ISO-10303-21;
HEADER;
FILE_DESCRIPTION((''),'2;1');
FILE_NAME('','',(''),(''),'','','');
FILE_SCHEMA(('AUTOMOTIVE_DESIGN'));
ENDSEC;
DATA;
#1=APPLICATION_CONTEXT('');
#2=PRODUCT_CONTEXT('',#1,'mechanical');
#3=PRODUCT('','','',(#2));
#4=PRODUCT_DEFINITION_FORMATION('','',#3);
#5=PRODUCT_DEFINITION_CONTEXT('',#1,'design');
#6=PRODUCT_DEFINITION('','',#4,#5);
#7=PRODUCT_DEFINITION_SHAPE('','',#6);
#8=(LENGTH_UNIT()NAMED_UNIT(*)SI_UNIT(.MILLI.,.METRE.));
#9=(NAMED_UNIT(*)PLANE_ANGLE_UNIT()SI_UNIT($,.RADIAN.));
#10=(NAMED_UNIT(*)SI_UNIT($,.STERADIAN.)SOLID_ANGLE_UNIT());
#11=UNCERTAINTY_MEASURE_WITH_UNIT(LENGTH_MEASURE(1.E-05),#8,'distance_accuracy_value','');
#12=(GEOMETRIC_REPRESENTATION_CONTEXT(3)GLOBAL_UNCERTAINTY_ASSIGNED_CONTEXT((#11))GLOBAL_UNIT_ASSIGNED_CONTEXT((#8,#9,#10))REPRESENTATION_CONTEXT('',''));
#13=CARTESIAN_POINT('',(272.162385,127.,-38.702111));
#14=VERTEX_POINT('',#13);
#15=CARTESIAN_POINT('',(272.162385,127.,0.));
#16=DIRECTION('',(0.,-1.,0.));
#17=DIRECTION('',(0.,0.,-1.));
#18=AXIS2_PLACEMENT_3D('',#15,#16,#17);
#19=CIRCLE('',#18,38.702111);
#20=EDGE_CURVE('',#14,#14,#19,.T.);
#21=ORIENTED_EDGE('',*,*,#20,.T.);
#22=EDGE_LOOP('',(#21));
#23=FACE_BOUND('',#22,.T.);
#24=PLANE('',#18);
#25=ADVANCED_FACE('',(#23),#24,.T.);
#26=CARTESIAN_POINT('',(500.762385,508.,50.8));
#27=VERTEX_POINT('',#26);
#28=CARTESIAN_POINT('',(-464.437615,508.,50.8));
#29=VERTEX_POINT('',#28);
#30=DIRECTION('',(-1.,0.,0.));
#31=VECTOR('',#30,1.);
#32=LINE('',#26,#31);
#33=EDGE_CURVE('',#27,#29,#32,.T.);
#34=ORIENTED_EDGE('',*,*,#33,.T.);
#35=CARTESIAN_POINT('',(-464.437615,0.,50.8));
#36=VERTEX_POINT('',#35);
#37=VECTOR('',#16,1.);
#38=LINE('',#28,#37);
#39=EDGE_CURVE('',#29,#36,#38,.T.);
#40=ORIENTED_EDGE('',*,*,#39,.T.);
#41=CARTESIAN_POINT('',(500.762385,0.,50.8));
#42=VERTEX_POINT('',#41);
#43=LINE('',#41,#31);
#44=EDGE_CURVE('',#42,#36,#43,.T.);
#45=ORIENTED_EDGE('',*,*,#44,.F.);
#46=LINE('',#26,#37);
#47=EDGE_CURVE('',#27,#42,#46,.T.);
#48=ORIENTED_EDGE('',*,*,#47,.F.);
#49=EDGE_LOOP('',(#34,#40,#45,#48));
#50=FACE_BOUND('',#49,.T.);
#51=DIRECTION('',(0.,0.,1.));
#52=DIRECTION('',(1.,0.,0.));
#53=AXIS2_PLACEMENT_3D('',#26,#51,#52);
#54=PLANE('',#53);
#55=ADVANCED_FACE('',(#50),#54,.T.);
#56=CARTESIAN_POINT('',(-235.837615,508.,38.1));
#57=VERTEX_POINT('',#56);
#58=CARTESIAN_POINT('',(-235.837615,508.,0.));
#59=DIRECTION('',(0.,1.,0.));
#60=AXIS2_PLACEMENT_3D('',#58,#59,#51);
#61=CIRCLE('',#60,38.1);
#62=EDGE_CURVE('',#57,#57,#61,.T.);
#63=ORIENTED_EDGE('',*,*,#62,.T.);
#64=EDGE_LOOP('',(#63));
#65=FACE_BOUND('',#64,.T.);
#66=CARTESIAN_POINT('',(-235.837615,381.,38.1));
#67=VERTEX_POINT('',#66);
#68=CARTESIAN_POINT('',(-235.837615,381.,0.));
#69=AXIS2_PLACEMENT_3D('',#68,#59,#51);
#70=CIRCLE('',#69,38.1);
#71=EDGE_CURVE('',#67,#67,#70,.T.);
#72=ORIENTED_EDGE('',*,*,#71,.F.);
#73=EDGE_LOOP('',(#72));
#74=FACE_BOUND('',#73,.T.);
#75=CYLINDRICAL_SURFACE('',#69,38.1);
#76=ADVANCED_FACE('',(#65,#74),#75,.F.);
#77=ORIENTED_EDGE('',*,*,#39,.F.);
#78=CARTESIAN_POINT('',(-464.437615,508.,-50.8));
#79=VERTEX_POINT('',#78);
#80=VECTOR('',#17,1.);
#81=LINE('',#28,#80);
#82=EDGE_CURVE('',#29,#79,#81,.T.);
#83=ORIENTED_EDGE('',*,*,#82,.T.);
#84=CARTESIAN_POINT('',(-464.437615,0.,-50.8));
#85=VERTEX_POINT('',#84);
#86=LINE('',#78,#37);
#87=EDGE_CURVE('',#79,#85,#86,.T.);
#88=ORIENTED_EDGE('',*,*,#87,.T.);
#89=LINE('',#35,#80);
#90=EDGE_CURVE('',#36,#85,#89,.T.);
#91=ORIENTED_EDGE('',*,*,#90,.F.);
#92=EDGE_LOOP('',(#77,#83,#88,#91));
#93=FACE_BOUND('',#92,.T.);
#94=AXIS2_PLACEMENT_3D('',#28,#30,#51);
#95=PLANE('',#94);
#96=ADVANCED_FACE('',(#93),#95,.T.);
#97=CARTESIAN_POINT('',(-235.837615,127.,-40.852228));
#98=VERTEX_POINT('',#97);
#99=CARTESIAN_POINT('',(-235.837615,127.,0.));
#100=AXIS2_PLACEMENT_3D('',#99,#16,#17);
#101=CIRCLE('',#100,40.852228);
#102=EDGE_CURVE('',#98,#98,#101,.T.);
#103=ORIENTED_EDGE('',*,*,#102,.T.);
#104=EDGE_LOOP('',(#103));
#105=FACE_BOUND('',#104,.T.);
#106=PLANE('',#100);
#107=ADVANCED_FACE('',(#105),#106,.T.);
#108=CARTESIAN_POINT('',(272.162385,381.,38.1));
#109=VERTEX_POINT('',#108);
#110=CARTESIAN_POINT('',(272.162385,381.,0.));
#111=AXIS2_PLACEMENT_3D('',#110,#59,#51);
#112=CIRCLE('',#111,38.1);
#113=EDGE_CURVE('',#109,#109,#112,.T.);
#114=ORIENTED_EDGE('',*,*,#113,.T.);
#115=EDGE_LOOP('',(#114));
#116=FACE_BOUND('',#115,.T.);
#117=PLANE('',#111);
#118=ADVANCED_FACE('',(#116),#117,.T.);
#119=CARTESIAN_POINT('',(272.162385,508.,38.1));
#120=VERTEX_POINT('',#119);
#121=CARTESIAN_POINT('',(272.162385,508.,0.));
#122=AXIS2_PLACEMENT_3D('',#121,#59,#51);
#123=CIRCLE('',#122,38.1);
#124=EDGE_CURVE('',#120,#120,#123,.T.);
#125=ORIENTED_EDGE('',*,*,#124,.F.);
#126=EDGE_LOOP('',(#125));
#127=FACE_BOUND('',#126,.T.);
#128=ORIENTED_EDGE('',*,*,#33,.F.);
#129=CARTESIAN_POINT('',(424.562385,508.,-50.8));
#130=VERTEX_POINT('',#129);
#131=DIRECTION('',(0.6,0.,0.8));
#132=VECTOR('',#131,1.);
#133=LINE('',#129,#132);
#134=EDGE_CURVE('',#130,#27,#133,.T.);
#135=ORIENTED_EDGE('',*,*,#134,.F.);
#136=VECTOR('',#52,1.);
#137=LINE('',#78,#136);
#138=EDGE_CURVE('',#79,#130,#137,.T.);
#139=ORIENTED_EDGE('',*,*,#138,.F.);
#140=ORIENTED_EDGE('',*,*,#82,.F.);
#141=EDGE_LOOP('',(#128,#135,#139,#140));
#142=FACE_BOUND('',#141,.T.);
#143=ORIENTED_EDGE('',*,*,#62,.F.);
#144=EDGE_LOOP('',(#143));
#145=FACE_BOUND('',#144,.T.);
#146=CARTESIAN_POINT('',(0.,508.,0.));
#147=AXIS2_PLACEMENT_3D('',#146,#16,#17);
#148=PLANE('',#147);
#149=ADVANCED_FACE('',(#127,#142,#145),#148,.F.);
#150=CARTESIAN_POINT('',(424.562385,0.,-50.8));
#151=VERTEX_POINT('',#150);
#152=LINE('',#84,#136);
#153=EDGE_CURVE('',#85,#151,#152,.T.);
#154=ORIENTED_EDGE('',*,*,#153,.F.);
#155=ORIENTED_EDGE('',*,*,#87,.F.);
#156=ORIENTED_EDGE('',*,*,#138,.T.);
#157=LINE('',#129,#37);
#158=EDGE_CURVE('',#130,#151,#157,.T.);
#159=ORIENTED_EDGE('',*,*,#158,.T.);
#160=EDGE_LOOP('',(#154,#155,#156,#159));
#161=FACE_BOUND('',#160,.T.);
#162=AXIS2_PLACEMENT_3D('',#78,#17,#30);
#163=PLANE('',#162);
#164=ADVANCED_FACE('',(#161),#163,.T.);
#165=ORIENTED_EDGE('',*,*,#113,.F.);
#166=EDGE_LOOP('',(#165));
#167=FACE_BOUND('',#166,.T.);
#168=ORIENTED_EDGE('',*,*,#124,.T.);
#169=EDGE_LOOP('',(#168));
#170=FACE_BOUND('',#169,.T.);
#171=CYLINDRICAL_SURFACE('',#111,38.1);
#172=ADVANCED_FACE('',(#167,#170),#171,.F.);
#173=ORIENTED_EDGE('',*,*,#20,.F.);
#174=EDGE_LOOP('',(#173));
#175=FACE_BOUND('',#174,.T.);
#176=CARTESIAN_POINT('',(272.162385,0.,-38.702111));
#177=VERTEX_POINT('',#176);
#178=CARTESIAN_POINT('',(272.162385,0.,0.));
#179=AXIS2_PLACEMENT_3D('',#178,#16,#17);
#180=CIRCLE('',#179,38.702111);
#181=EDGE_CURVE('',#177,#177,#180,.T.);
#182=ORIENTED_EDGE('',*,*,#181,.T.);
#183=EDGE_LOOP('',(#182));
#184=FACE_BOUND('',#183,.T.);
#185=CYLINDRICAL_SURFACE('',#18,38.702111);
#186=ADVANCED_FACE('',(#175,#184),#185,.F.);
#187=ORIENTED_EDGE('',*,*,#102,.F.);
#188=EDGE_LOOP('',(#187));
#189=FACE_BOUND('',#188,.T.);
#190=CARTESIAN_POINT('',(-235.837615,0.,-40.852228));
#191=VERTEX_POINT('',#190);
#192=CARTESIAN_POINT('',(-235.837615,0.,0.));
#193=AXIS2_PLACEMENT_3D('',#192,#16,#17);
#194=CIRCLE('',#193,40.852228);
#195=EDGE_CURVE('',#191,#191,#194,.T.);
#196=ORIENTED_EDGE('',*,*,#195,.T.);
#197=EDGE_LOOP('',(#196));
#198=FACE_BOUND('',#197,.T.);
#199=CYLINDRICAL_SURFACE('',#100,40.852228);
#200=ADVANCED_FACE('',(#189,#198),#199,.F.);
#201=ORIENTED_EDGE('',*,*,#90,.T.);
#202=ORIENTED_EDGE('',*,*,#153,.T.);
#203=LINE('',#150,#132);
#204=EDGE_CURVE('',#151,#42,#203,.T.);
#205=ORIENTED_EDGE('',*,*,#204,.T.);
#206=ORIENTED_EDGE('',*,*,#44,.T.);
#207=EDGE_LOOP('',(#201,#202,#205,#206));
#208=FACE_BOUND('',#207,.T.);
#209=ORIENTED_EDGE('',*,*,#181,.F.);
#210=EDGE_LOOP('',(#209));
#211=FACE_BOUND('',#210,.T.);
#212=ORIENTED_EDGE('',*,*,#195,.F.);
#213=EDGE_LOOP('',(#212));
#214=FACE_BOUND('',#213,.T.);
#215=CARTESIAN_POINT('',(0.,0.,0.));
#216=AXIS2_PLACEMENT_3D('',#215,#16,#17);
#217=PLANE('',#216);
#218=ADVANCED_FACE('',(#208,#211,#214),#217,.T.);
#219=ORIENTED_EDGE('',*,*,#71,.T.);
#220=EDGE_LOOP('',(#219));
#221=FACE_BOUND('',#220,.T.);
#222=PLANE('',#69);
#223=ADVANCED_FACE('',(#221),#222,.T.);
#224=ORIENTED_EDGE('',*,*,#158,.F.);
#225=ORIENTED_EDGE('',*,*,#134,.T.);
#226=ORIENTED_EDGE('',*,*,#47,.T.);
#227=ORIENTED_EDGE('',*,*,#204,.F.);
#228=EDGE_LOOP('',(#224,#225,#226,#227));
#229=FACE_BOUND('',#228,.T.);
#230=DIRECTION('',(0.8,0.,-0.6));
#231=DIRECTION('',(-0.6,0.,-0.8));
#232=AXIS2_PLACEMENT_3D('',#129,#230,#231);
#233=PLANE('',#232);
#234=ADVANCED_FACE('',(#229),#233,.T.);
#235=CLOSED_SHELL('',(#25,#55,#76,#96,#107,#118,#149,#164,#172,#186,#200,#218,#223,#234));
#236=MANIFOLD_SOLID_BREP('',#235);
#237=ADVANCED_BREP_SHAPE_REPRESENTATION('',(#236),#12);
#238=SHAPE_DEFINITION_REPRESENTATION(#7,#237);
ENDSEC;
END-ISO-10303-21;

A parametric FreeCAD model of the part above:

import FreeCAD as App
import Part
import Sketcher
Q = App.Units.Quantity


def add_polygon(sketch, points):
    """Adds a closed chain of lines whose ends are joined by coincident constraints."""
    first, n = sketch.GeometryCount, len(points)
    for a, b in zip(points, points[1:] + points[:1]):
        sketch.addGeometry(Part.LineSegment(App.Vector(*a, 0), App.Vector(*b, 0)), False)
    for i in range(n):
        sketch.addConstraint(Sketcher.Constraint("Coincident", first + i, 2, first + (i + 1) % n, 1))

doc = App.newDocument("Part")
body = doc.addObject("PartDesign::Body", "Body")

sketch1 = body.newObject("Sketcher::SketchObject", "Sketch")
sketch1.AttachmentSupport = (doc.getObject("XZ_Plane"), [""])
sketch1.MapMode = "FlatFace"
add_polygon(sketch1, [(425, -51), (-464, -51), (-464, 51), (501, 51)])
sketch1.addConstraint([
    Sketcher.Constraint("Horizontal", 0),
    Sketcher.Constraint("Vertical", 1),
    Sketcher.Constraint("Horizontal", 2),
    Sketcher.Constraint("DistanceX", 0, 2, 0, 1, Q("35 in")),
    Sketcher.Constraint("DistanceX", 2, 1, 2, 2, Q("38 in")),
    Sketcher.Constraint("DistanceY", 1, 1, 1, 2, Q("4 in")),
    Sketcher.Constraint("DistanceY", 0, 2, -1, 1, Q("2 in")),
    Sketcher.Constraint("DistanceX", 0, 2, -1, 1, 464.437615),
])
pad1 = body.newObject("PartDesign::Pad", "Pad")
pad1.Profile = sketch1
pad1.Length = Q("20 in")
pad1.Reversed = True

sketch2 = body.newObject("Sketcher::SketchObject", "Sketch001")
sketch2.AttachmentSupport = (doc.getObject("XZ_Plane"), [""])
sketch2.MapMode = "FlatFace"
sketch2.AttachmentOffset = App.Placement(App.Vector(0, 0, -20 * 25.4), App.Rotation())
sketch2.addGeometry([
    Part.Circle(App.Vector(-236, 0, 0), App.Vector(0, 0, 1), 38),
    Part.Circle(App.Vector(272, 0, 0), App.Vector(0, 0, 1), 38),
], False)
sketch2.addConstraint([
    Sketcher.Constraint("Equal", 0, 1),
    Sketcher.Constraint("PointOnObject", 0, 3, -1),
    Sketcher.Constraint("PointOnObject", 1, 3, -1),
    Sketcher.Constraint("Diameter", 0, Q("3 in")),
    Sketcher.Constraint("DistanceX", 0, 3, 1, 3, Q("20 in")),
    Sketcher.Constraint("DistanceX", 0, 3, -1, 1, 235.837615),
])
pocket1 = body.newObject("PartDesign::Pocket", "Pocket")
pocket1.Profile = sketch2
pocket1.Length = Q("5 in")
pocket1.Reversed = True

sketch3 = body.newObject("Sketcher::SketchObject", "Sketch002")
sketch3.AttachmentSupport = (doc.getObject("XZ_Plane"), [""])
sketch3.MapMode = "FlatFace"
sketch3.addGeometry([
    Part.Circle(App.Vector(-236, 0, 0), App.Vector(0, 0, 1), 41),
    Part.Circle(App.Vector(272, 0, 0), App.Vector(0, 0, 1), 39),
], False)
sketch3.addConstraint([
    Sketcher.Constraint("PointOnObject", 0, 3, -1),
    Sketcher.Constraint("PointOnObject", 1, 3, -1),
    Sketcher.Constraint("DistanceX", 0, 3, 1, 3, Q("20 in")),
    Sketcher.Constraint("Diameter", 1, 77.404221),
    Sketcher.Constraint("Diameter", 0, 81.704456),
    Sketcher.Constraint("DistanceX", 0, 3, -1, 1, 235.837615),
])
pocket2 = body.newObject("PartDesign::Pocket", "Pocket001")
pocket2.Profile = sketch3
pocket2.Length = Q("5 in")

doc.recompute()
